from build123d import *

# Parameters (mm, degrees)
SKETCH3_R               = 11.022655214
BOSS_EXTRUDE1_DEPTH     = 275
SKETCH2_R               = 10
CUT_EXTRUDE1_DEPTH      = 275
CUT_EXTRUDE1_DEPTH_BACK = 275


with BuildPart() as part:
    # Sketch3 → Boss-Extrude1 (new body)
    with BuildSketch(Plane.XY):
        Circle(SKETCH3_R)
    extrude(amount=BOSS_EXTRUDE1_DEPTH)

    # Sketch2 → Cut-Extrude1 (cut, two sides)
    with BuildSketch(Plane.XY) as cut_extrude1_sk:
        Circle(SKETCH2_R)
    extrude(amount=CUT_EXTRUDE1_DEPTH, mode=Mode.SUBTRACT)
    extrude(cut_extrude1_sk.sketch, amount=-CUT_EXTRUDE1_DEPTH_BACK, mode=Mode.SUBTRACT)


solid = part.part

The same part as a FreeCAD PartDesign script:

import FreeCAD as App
import Part
import Sketcher

V = App.Vector

doc = App.newDocument("Part")
params = doc.addObject("Spreadsheet::Sheet", "Params")
for row, (alias, value) in enumerate([
    ("pad1_length", "275 mm"),
    ("sketch2_diameter", "20 mm"),
], start=1):
    params.set(f"A{row}", alias)
    params.set(f"B{row}", "=" + value)
    params.setAlias(f"B{row}", alias)

body = doc.addObject("PartDesign::Body", "Body")

# Sketch on XY plane
sketch1 = body.newObject("Sketcher::SketchObject", "Sketch")
sketch1.AttachmentSupport = (doc.getObject("XY_Plane"), [""])
sketch1.MapMode = "FlatFace"
sketch1.addGeometry(Part.Circle(V(0, 0, 0), V(0, 0, 1), 11), False)
sketch1.addConstraint([
    Sketcher.Constraint("Coincident", 0, 3, -1, 1),
    Sketcher.Constraint("Diameter", 0, 22.04531),
])
pad1 = body.newObject("PartDesign::Pad", "Pad")
pad1.Profile = sketch1
pad1.setExpression("Length", "Params.pad1_length")

# Sketch on XY plane
sketch2 = body.newObject("Sketcher::SketchObject", "Sketch001")
sketch2.AttachmentSupport = (doc.getObject("XY_Plane"), [""])
sketch2.MapMode = "FlatFace"
sketch2.addGeometry(Part.Circle(V(0, 0, 0), V(0, 0, 1), 10), False)
sketch2.addConstraint([
    Sketcher.Constraint("Coincident", 0, 3, -1, 1),
    Sketcher.Constraint("Diameter", 0, 20.0),
])
sketch2.setExpression("Constraints[1]", "Params.sketch2_diameter")
pocket1 = body.newObject("PartDesign::Pocket", "Pocket")
pocket1.Profile = sketch2
pocket1.Type = "ThroughAll"
pocket1.Midplane = True

doc.recompute()
